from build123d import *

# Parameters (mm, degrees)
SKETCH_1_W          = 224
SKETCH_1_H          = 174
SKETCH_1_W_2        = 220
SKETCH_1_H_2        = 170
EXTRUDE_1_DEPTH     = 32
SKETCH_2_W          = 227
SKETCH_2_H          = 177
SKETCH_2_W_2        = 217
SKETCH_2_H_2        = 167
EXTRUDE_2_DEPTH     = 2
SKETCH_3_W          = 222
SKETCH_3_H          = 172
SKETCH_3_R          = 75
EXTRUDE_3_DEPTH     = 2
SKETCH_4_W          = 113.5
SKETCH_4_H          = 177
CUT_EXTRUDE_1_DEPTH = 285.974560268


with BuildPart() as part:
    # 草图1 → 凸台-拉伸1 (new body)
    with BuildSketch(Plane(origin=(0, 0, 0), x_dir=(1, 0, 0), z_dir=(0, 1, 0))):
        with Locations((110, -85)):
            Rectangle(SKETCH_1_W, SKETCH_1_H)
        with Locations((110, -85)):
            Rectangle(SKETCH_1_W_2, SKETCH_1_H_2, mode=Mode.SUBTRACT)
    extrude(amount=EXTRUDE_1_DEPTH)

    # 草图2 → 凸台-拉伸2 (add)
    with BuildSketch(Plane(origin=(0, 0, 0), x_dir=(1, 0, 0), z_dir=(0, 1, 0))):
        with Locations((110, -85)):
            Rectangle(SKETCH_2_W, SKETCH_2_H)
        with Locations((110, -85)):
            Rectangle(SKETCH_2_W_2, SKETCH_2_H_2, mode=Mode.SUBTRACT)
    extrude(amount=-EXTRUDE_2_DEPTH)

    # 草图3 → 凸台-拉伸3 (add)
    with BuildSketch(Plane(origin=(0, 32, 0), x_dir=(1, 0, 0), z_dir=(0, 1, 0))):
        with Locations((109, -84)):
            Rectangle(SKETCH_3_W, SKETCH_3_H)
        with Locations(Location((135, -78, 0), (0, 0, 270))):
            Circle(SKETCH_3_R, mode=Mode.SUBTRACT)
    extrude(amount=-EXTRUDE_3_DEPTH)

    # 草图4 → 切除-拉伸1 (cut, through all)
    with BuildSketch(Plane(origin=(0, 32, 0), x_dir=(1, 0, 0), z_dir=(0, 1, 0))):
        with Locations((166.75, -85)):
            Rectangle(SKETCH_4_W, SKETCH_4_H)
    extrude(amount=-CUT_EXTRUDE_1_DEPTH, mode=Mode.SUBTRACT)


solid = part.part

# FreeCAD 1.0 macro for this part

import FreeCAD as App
import Part
import Sketcher
Q = App.Units.Quantity

doc = App.newDocument("Part")
body = doc.addObject("PartDesign::Body", "Body")

# Sketch on XZ plane
sketch1 = body.newObject("Sketcher::SketchObject", "Sketch")
sketch1.AttachmentSupport = (doc.getObject("XZ_Plane"), [""])
sketch1.MapMode = "FlatFace"
sketch1.addGeometry(Part.LineSegment(App.Vector(-2, -2, 0), App.Vector(-2, 172, 0)), False)
sketch1.addGeometry(Part.LineSegment(App.Vector(-2, 172, 0), App.Vector(222, 172, 0)), False)
sketch1.addGeometry(Part.LineSegment(App.Vector(222, 172, 0), App.Vector(222, -2, 0)), False)
sketch1.addGeometry(Part.LineSegment(App.Vector(222, -2, 0), App.Vector(-2, -2, 0)), False)
sketch1.addGeometry(Part.LineSegment(App.Vector(220, 170, 0), App.Vector(0, 170, 0)), False)
sketch1.addGeometry(Part.LineSegment(App.Vector(0, 170, 0), App.Vector(0, 0, 0)), False)
sketch1.addGeometry(Part.LineSegment(App.Vector(0, 0, 0), App.Vector(220, 0, 0)), False)
sketch1.addGeometry(Part.LineSegment(App.Vector(220, 0, 0), App.Vector(220, 170, 0)), False)
sketch1.addConstraint(Sketcher.Constraint("Coincident", 0, 2, 1, 1))
sketch1.addConstraint(Sketcher.Constraint("Coincident", 1, 2, 2, 1))
sketch1.addConstraint(Sketcher.Constraint("Coincident", 2, 2, 3, 1))
sketch1.addConstraint(Sketcher.Constraint("Coincident", 3, 2, 0, 1))
sketch1.addConstraint(Sketcher.Constraint("Coincident", 4, 2, 5, 1))
sketch1.addConstraint(Sketcher.Constraint("Coincident", 5, 2, 6, 1))
sketch1.addConstraint(Sketcher.Constraint("Coincident", 6, 2, 7, 1))
sketch1.addConstraint(Sketcher.Constraint("Coincident", 7, 2, 4, 1))
sketch1.addConstraint(Sketcher.Constraint("Vertical", 0))
sketch1.addConstraint(Sketcher.Constraint("Horizontal", 1))
sketch1.addConstraint(Sketcher.Constraint("Vertical", 2))
sketch1.addConstraint(Sketcher.Constraint("Horizontal", 3))
sketch1.addConstraint(Sketcher.Constraint("Horizontal", 4))
sketch1.addConstraint(Sketcher.Constraint("Vertical", 5))
sketch1.addConstraint(Sketcher.Constraint("Horizontal", 6))
sketch1.addConstraint(Sketcher.Constraint("Vertical", 7))
sketch1.addConstraint(Sketcher.Constraint("Coincident", 5, 2, -1, 1))
sketch1.addConstraint(Sketcher.Constraint("DistanceX", 1, 1, 1, 2, Q("224 mm")))
sketch1.addConstraint(Sketcher.Constraint("DistanceX", 4, 2, 4, 1, Q("220 mm")))
sketch1.addConstraint(Sketcher.Constraint("DistanceY", 0, 1, 0, 2, Q("174 mm")))
sketch1.addConstraint(Sketcher.Constraint("DistanceY", 5, 2, 5, 1, Q("170 mm")))
sketch1.addConstraint(Sketcher.Constraint("DistanceX", 0, 2, -1, 1, Q("2 mm")))
sketch1.addConstraint(Sketcher.Constraint("DistanceY", -1, 1, 0, 2, Q("172 mm")))
pad1 = body.newObject("PartDesign::Pad", "Pad")
pad1.Profile = sketch1
pad1.Length = 32
pad1.Reversed = True

# Sketch on XZ plane
sketch2 = body.newObject("Sketcher::SketchObject", "Sketch001")
sketch2.AttachmentSupport = (doc.getObject("XZ_Plane"), [""])
sketch2.MapMode = "FlatFace"
sketch2.addGeometry(Part.LineSegment(App.Vector(-4, -4, 0), App.Vector(-4, 174, 0)), False)
sketch2.addGeometry(Part.LineSegment(App.Vector(-4, 174, 0), App.Vector(224, 174, 0)), False)
sketch2.addGeometry(Part.LineSegment(App.Vector(224, 174, 0), App.Vector(224, -4, 0)), False)
sketch2.addGeometry(Part.LineSegment(App.Vector(224, -4, 0), App.Vector(-4, -4, 0)), False)
sketch2.addGeometry(Part.LineSegment(App.Vector(218, 168, 0), App.Vector(2, 168, 0)), False)
sketch2.addGeometry(Part.LineSegment(App.Vector(2, 168, 0), App.Vector(2, 2, 0)), False)
sketch2.addGeometry(Part.LineSegment(App.Vector(2, 2, 0), App.Vector(218, 2, 0)), False)
sketch2.addGeometry(Part.LineSegment(App.Vector(218, 2, 0), App.Vector(218, 168, 0)), False)
sketch2.addConstraint(Sketcher.Constraint("Coincident", 0, 2, 1, 1))
sketch2.addConstraint(Sketcher.Constraint("Coincident", 1, 2, 2, 1))
sketch2.addConstraint(Sketcher.Constraint("Coincident", 2, 2, 3, 1))
sketch2.addConstraint(Sketcher.Constraint("Coincident", 3, 2, 0, 1))
sketch2.addConstraint(Sketcher.Constraint("Coincident", 4, 2, 5, 1))
sketch2.addConstraint(Sketcher.Constraint("Coincident", 5, 2, 6, 1))
sketch2.addConstraint(Sketcher.Constraint("Coincident", 6, 2, 7, 1))
sketch2.addConstraint(Sketcher.Constraint("Coincident", 7, 2, 4, 1))
sketch2.addConstraint(Sketcher.Constraint("Vertical", 0))
sketch2.addConstraint(Sketcher.Constraint("Horizontal", 1))
sketch2.addConstraint(Sketcher.Constraint("Vertical", 2))
sketch2.addConstraint(Sketcher.Constraint("Horizontal", 3))
sketch2.addConstraint(Sketcher.Constraint("Horizontal", 4))
sketch2.addConstraint(Sketcher.Constraint("Vertical", 5))
sketch2.addConstraint(Sketcher.Constraint("Horizontal", 6))
sketch2.addConstraint(Sketcher.Constraint("Vertical", 7))
sketch2.addConstraint(Sketcher.Constraint("DistanceX", 1, 1, 1, 2, Q("227 mm")))
sketch2.addConstraint(Sketcher.Constraint("DistanceX", 4, 2, 4, 1, Q("217 mm")))
sketch2.addConstraint(Sketcher.Constraint("DistanceY", 0, 1, 0, 2, Q("177 mm")))
sketch2.addConstraint(Sketcher.Constraint("DistanceY", 5, 2, 5, 1, Q("167 mm")))
sketch2.addConstraint(Sketcher.Constraint("DistanceX", 0, 2, 4, 2, Q("5 mm")))
sketch2.addConstraint(Sketcher.Constraint("DistanceY", 4, 2, 0, 2, Q("5 mm")))
sketch2.addConstraint(Sketcher.Constraint("DistanceX", 0, 2, -1, 1, Q("3.5 mm")))
sketch2.addConstraint(Sketcher.Constraint("DistanceY", -1, 1, 0, 2, Q("173.5 mm")))
pad2 = body.newObject("PartDesign::Pad", "Pad001")
pad2.Profile = sketch2
pad2.Length = 2

# Sketch on XZ plane
sketch3 = body.newObject("Sketcher::SketchObject", "Sketch002")
sketch3.AttachmentSupport = (doc.getObject("XZ_Plane"), [""])
sketch3.MapMode = "FlatFace"
sketch3.AttachmentOffset = App.Placement(App.Vector(0, 0, -32), App.Rotation())
sketch3.addGeometry(Part.LineSegment(App.Vector(-2, -2, 0), App.Vector(-2, 170, 0)), False)
sketch3.addGeometry(Part.LineSegment(App.Vector(-2, 170, 0), App.Vector(220, 170, 0)), False)
sketch3.addGeometry(Part.LineSegment(App.Vector(220, 170, 0), App.Vector(220, -2, 0)), False)
sketch3.addGeometry(Part.LineSegment(App.Vector(220, -2, 0), App.Vector(-2, -2, 0)), False)
sketch3.addGeometry(Part.Circle(App.Vector(135, 78, 0), App.Vector(0, 0, 1), 75), False)
sketch3.addConstraint(Sketcher.Constraint("Coincident", 0, 2, 1, 1))
sketch3.addConstraint(Sketcher.Constraint("Coincident", 1, 2, 2, 1))
sketch3.addConstraint(Sketcher.Constraint("Coincident", 2, 2, 3, 1))
sketch3.addConstraint(Sketcher.Constraint("Coincident", 3, 2, 0, 1))
sketch3.addConstraint(Sketcher.Constraint("Vertical", 0))
sketch3.addConstraint(Sketcher.Constraint("Horizontal", 1))
sketch3.addConstraint(Sketcher.Constraint("Vertical", 2))
sketch3.addConstraint(Sketcher.Constraint("Horizontal", 3))
sketch3.addConstraint(Sketcher.Constraint("Diameter", 4, Q("150 mm")))
sketch3.addConstraint(Sketcher.Constraint("DistanceX", 1, 1, 1, 2, Q("222 mm")))
sketch3.addConstraint(Sketcher.Constraint("DistanceY", 0, 1, 0, 2, Q("172 mm")))
sketch3.addConstraint(Sketcher.Constraint("DistanceX", -1, 1, 4, 3, Q("135 mm")))
sketch3.addConstraint(Sketcher.Constraint("DistanceY", -1, 1, 4, 3, Q("78 mm")))
sketch3.addConstraint(Sketcher.Constraint("DistanceX", 0, 2, -1, 1, Q("2 mm")))
sketch3.addConstraint(Sketcher.Constraint("DistanceY", -1, 1, 0, 2, Q("170 mm")))
pad3 = body.newObject("PartDesign::Pad", "Pad002")
pad3.Profile = sketch3
pad3.Length = 2

# Sketch on XZ plane
sketch4 = body.newObject("Sketcher::SketchObject", "Sketch003")
sketch4.AttachmentSupport = (doc.getObject("XZ_Plane"), [""])
sketch4.MapMode = "FlatFace"
sketch4.AttachmentOffset = App.Placement(App.Vector(0, 0, -32), App.Rotation())
sketch4.addGeometry(Part.LineSegment(App.Vector(110, -4, 0), App.Vector(110, 174, 0)), False)
sketch4.addGeometry(Part.LineSegment(App.Vector(110, 174, 0), App.Vector(224, 174, 0)), False)
sketch4.addGeometry(Part.LineSegment(App.Vector(224, 174, 0), App.Vector(224, -4, 0)), False)
sketch4.addGeometry(Part.LineSegment(App.Vector(224, -4, 0), App.Vector(110, -4, 0)), False)
sketch4.addConstraint(Sketcher.Constraint("Coincident", 0, 2, 1, 1))
sketch4.addConstraint(Sketcher.Constraint("Coincident", 1, 2, 2, 1))
sketch4.addConstraint(Sketcher.Constraint("Coincident", 2, 2, 3, 1))
sketch4.addConstraint(Sketcher.Constraint("Coincident", 3, 2, 0, 1))
sketch4.addConstraint(Sketcher.Constraint("Vertical", 0))
sketch4.addConstraint(Sketcher.Constraint("Horizontal", 1))
sketch4.addConstraint(Sketcher.Constraint("Vertical", 2))
sketch4.addConstraint(Sketcher.Constraint("Horizontal", 3))
sketch4.addConstraint(Sketcher.Constraint("DistanceY", 0, 1, 0, 2, Q("177 mm")))
sketch4.addConstraint(Sketcher.Constraint("DistanceX", 1, 1, 1, 2, Q("113.5 mm")))
sketch4.addConstraint(Sketcher.Constraint("DistanceX", -1, 1, 0, 2, Q("110 mm")))
sketch4.addConstraint(Sketcher.Constraint("DistanceY", -1, 1, 0, 2, Q("173.5 mm")))
pocket1 = body.newObject("PartDesign::Pocket", "Pocket")
pocket1.Profile = sketch4
pocket1.Type = "ThroughAll"
pocket1.Reversed = True

doc.recompute()
